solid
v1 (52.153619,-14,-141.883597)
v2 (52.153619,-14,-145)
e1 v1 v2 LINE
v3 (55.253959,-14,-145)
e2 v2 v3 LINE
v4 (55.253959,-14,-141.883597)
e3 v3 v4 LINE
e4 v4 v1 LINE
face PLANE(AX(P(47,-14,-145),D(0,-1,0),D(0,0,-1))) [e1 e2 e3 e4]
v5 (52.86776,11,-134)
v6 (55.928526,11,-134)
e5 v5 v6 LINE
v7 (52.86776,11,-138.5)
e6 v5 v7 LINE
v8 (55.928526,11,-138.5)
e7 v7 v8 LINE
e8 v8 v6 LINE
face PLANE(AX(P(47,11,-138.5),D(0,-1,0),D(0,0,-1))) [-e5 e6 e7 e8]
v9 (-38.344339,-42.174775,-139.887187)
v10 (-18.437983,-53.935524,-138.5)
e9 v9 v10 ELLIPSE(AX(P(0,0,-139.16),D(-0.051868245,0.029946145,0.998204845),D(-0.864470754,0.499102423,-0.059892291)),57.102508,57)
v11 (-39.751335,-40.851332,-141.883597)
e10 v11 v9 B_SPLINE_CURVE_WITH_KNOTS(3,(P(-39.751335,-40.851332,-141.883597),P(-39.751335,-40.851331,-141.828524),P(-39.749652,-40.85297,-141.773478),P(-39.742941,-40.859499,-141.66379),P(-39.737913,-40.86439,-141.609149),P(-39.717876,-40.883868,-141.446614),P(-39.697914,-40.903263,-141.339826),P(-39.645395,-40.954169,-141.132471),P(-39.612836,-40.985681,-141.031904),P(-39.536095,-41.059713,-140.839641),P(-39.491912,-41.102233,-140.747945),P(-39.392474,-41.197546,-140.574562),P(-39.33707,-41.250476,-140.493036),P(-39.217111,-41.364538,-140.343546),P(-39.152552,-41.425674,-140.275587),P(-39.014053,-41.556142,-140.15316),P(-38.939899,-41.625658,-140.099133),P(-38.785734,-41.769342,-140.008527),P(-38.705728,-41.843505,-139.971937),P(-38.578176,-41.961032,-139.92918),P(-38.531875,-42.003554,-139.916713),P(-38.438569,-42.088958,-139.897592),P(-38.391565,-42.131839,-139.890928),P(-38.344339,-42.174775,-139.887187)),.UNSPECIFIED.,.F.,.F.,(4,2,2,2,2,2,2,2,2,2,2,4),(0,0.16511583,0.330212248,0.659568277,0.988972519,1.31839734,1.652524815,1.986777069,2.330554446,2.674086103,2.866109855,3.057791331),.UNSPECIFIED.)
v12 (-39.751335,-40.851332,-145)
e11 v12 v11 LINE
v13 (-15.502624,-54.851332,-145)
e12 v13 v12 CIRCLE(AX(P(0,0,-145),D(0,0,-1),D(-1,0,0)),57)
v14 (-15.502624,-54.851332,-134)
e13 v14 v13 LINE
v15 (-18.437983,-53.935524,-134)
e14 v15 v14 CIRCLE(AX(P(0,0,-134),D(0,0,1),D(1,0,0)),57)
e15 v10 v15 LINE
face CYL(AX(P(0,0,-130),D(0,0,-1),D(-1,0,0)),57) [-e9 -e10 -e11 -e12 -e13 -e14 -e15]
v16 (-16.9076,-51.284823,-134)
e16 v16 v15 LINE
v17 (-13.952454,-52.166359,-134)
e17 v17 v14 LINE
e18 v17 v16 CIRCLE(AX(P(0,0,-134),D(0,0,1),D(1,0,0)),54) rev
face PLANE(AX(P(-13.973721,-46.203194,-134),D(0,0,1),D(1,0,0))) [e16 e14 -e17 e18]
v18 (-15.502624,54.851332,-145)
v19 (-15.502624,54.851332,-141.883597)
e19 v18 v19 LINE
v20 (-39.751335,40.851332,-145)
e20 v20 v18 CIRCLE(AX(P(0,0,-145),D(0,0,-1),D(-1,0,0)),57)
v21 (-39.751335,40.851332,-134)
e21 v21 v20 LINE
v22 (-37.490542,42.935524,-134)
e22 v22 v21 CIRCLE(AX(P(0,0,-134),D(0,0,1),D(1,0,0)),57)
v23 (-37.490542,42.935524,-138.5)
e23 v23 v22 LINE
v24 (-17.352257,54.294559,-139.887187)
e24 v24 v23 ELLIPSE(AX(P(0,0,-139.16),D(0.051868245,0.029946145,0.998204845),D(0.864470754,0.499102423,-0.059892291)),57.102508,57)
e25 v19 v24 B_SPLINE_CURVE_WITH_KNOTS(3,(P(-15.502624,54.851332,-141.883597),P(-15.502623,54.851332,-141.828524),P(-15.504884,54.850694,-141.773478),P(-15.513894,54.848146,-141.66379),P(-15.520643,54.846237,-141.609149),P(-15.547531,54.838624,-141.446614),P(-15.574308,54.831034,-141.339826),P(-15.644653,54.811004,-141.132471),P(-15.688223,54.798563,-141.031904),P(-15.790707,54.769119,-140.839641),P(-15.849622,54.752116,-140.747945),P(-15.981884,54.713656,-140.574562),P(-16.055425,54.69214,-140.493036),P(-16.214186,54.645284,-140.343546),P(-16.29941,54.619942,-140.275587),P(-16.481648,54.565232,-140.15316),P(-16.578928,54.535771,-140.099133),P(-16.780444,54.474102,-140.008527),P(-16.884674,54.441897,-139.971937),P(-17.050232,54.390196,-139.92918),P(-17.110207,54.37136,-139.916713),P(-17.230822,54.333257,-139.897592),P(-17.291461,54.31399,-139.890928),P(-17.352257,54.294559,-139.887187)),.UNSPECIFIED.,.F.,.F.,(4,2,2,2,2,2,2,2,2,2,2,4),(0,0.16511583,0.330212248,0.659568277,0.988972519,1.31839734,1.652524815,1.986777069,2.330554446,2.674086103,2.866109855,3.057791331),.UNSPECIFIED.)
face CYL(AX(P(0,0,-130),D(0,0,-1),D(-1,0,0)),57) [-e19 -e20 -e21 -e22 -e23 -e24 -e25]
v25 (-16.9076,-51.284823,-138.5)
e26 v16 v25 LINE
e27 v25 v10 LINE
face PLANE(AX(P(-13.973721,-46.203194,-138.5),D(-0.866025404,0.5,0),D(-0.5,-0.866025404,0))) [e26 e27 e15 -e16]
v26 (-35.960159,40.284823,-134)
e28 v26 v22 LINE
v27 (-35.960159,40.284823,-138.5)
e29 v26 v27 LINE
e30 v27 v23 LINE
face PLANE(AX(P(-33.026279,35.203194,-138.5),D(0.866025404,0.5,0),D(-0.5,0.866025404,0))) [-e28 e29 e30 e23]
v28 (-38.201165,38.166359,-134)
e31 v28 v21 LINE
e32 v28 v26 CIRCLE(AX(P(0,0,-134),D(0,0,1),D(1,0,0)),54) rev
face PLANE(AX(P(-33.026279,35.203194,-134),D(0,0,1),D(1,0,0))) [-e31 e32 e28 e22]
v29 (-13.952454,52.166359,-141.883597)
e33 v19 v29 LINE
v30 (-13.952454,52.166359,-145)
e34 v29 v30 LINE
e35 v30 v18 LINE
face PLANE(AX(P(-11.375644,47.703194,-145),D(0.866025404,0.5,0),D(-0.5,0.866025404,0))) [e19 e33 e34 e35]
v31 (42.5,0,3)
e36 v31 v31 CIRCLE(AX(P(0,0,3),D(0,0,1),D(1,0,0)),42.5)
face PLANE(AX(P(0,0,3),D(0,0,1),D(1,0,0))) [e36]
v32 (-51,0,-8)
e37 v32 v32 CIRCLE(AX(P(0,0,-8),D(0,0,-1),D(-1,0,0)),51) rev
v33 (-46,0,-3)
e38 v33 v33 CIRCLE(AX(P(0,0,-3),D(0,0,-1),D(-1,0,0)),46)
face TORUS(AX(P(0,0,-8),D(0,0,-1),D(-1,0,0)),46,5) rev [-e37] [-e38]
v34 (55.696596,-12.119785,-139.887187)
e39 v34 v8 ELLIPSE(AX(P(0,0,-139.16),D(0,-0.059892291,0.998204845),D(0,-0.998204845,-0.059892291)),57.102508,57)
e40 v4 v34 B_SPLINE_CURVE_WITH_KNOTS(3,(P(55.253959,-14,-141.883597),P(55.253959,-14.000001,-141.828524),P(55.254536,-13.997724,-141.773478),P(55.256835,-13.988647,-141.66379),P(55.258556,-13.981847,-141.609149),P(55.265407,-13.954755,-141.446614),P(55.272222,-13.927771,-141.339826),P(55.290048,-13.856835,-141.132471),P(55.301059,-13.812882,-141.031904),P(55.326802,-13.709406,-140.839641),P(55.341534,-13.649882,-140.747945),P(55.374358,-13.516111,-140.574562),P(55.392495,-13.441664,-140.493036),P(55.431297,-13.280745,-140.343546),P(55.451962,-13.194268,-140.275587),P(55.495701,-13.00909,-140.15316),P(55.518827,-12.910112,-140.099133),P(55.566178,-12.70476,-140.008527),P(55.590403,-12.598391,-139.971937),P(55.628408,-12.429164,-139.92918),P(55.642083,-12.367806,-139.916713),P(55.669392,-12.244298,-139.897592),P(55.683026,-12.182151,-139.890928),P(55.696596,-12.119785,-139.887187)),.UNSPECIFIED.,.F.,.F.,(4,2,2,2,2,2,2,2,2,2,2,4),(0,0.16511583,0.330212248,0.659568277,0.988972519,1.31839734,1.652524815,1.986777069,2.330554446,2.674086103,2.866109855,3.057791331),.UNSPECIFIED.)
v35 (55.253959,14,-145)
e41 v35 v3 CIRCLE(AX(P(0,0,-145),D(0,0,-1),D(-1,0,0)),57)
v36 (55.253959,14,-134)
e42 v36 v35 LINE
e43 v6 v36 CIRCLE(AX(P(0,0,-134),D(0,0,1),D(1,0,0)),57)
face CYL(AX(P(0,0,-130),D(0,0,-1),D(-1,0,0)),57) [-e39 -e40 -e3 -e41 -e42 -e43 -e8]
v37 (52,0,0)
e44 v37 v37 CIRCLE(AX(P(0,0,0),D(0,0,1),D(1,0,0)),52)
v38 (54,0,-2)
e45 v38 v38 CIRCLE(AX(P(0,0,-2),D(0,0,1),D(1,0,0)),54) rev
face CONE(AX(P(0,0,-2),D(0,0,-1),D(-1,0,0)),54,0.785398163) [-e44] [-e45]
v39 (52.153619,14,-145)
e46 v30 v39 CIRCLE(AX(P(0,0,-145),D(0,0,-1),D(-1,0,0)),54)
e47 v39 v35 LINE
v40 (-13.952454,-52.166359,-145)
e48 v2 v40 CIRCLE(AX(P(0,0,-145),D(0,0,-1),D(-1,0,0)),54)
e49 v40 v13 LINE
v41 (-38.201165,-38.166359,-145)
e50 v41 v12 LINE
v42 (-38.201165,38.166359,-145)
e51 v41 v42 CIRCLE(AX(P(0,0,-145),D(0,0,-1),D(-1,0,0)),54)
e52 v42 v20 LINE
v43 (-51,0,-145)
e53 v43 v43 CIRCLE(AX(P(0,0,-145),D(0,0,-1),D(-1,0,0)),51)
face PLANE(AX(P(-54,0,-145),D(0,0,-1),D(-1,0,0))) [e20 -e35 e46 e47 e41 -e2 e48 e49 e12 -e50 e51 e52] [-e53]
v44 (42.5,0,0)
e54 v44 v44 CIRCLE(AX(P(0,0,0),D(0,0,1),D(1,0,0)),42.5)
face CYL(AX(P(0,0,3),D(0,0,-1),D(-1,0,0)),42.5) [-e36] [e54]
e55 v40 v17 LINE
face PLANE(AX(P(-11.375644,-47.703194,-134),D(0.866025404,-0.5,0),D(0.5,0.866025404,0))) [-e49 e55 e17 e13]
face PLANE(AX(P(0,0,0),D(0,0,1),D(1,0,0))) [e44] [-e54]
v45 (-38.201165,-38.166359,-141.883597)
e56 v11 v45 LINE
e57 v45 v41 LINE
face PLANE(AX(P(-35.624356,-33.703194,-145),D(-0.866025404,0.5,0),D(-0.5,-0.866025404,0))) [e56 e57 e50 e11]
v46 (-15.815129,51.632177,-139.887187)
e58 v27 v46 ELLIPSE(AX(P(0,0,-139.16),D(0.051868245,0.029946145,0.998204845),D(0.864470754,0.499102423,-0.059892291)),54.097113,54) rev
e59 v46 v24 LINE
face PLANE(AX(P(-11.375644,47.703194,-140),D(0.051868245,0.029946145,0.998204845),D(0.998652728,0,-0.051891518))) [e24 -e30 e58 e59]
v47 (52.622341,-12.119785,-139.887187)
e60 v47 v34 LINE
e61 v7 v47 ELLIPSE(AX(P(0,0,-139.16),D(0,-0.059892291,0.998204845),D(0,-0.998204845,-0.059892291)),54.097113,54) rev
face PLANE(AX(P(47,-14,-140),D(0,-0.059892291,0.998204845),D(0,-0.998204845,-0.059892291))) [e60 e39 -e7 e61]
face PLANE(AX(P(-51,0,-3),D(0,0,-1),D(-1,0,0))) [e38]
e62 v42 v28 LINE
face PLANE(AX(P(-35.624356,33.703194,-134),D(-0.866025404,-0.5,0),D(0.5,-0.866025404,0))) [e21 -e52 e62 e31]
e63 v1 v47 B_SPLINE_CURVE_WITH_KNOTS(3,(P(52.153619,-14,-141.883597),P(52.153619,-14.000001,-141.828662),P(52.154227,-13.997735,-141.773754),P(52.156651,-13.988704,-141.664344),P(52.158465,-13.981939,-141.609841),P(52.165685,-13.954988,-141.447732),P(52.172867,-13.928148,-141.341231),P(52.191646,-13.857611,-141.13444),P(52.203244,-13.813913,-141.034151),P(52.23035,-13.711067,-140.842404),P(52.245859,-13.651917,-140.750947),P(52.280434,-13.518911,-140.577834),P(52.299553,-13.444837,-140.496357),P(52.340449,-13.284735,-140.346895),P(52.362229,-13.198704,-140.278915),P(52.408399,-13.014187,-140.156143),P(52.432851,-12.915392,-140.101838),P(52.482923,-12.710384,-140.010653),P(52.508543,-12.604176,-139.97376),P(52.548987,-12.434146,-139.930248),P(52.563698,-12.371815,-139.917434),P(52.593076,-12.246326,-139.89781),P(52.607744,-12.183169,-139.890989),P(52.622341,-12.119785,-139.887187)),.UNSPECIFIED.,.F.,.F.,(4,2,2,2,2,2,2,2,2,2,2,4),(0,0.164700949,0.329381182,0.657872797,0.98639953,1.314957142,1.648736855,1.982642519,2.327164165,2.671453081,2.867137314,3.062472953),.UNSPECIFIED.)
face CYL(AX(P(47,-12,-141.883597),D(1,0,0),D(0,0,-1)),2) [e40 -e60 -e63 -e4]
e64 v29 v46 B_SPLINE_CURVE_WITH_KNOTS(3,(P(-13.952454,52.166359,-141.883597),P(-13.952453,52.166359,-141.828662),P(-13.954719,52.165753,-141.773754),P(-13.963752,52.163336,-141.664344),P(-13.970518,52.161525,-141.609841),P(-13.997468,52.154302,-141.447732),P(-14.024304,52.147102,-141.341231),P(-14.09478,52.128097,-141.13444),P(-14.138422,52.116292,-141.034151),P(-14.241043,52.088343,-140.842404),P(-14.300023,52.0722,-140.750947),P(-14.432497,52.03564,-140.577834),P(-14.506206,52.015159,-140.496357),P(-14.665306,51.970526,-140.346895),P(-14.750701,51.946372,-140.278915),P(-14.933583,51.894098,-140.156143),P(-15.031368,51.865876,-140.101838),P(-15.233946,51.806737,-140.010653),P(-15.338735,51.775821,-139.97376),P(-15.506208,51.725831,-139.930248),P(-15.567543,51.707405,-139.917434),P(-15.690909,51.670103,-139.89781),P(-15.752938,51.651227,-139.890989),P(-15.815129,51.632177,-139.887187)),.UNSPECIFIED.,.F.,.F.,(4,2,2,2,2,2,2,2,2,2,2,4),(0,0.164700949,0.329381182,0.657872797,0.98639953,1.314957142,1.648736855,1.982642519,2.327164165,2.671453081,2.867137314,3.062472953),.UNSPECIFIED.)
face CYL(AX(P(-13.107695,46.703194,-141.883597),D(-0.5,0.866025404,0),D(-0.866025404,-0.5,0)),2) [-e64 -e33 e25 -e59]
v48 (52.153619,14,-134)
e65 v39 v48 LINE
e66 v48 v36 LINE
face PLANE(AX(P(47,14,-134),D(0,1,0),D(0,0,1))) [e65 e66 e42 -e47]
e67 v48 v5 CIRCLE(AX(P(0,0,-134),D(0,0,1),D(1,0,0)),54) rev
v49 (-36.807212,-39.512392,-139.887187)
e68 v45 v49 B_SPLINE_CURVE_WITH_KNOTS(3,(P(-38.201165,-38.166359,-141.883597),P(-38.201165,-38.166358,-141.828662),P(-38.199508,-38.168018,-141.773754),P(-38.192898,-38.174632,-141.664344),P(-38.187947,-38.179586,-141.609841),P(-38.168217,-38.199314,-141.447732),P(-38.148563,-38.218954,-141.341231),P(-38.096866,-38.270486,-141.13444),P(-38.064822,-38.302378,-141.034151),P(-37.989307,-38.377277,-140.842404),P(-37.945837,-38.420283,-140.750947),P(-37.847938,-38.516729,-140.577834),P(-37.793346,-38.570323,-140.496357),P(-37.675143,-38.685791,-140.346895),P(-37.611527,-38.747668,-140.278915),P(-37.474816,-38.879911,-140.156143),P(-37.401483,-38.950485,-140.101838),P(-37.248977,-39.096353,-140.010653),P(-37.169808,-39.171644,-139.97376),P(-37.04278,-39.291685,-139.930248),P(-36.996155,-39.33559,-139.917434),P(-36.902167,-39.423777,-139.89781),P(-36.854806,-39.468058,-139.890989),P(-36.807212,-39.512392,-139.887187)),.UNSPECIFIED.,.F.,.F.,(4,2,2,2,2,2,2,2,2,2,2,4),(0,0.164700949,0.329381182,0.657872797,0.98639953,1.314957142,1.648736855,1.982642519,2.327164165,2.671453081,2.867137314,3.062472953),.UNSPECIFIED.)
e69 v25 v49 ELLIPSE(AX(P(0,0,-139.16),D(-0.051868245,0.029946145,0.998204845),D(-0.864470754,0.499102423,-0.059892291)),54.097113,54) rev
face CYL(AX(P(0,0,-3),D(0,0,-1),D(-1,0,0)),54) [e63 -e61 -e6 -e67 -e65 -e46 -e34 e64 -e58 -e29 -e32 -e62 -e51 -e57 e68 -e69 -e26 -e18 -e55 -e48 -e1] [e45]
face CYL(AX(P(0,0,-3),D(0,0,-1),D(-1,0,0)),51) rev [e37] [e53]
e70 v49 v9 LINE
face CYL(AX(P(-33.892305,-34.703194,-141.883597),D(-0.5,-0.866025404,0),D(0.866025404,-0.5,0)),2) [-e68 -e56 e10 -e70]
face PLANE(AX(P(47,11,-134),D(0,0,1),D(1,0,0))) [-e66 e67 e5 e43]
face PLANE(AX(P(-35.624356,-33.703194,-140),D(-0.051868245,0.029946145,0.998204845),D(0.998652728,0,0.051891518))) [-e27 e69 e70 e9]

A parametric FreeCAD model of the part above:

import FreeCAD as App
import Part
import Sketcher

V = App.Vector
Q = App.Units.Quantity


def edges_at(feature, points):
    """Names of the edges that pass closest to the given points."""
    edges = feature.Shape.Edges
    near = lambda p: min(range(len(edges)), key=lambda i: edges[i].distToShape(Part.Vertex(*p))[0])
    return sorted({f"Edge{near(p) + 1}" for p in points})


def add_polygon(sketch, points):
    """Adds a closed chain of lines whose ends are joined by coincident constraints."""
    first, n = sketch.GeometryCount, len(points)
    for a, b in zip(points, points[1:] + points[:1]):
        sketch.addGeometry(Part.LineSegment(App.Vector(*a, 0), App.Vector(*b, 0)), False)
    for i in range(n):
        sketch.addConstraint(Sketcher.Constraint("Coincident", first + i, 2, first + (i + 1) % n, 1))

doc = App.newDocument("Part")
body = doc.addObject("PartDesign::Body", "Body")

# Sketch on XZ plane
sketch1 = body.newObject("Sketcher::SketchObject", "Sketch")
sketch1.AttachmentSupport = (doc.getObject("XZ_Plane"), [""])
sketch1.MapMode = "FlatFace"
add_polygon(sketch1, [(-54, 0), (0, 0), (0, -3), (-51, -3), (-51, -145), (-54, -145)])  # lines 0-5
sketch1.addConstraint([
    Sketcher.Constraint("Horizontal", 0),
    Sketcher.Constraint("Vertical", 1),
    Sketcher.Constraint("Horizontal", 2),
    Sketcher.Constraint("Vertical", 3),
    Sketcher.Constraint("Horizontal", 4),
    Sketcher.Constraint("Vertical", 5),
    Sketcher.Constraint("Coincident", 0, 2, -1, 1),
    Sketcher.Constraint("Equal", 4, 1),
    Sketcher.Constraint("DistanceX", 0, 1, 0, 2, Q("54 mm")),
    Sketcher.Constraint("DistanceX", 2, 2, 2, 1, Q("51 mm")),
    Sketcher.Constraint("DistanceY", 3, 2, 3, 1, Q("142 mm")),
])
revolution = body.newObject("PartDesign::Revolution", "Revolution")
revolution.Profile = sketch1
revolution.ReferenceAxis = (sketch1, ["V_Axis"])
revolution.Angle = 360

# Sketch on YZ plane
sketch2 = body.newObject("Sketcher::SketchObject", "Sketch001")
sketch2.AttachmentSupport = (doc.getObject("YZ_Plane"), [""])
sketch2.MapMode = "FlatFace"
sketch2.AttachmentOffset = App.Placement(V(0, 0, 57), App.Rotation())
add_polygon(sketch2, [(-14, -145), (14, -145), (14, -134), (11, -134), (11, -138.5), (-14, -140)])  # lines 0-5
sketch2.addConstraint([
    Sketcher.Constraint("Horizontal", 0),
    Sketcher.Constraint("Vertical", 1),
    Sketcher.Constraint("Horizontal", 2),
    Sketcher.Constraint("Vertical", 3),
    Sketcher.Constraint("Vertical", 5),
    Sketcher.Constraint("DistanceX", 0, 1, 0, 2, Q("28 mm")),
    Sketcher.Constraint("DistanceX", 2, 2, 2, 1, Q("3 mm")),
    Sketcher.Constraint("DistanceY", 1, 1, 1, 2, Q("11 mm")),
    Sketcher.Constraint("DistanceY", 5, 2, 5, 1, Q("5 mm")),
    Sketcher.Constraint("DistanceY", 3, 2, 3, 1, Q("4.5 mm")),
    Sketcher.Constraint("DistanceX", -1, 1, 0, 2, Q("14 mm")),
    Sketcher.Constraint("DistanceY", 0, 2, -1, 1, Q("145 mm")),
])
pad1 = body.newObject("PartDesign::Pad", "Pad")
pad1.Profile = sketch2
pad1.Length = 10
pad1.Reversed = True
doc.recompute()

fillet = body.newObject("PartDesign::Fillet", "Fillet")
fillet.Base = (pad1, edges_at(pad1, [(54.577, -14, -140)]))
fillet.Radius = 2
doc.recompute()

polarpattern = body.newObject("PartDesign::PolarPattern", "PolarPattern")
polarpattern.Originals = [pad1]
polarpattern.Axis = (doc.getObject("Z_Axis"), [""])
polarpattern.Angle = 360
polarpattern.Occurrences = 3
body.Tip = polarpattern
doc.recompute()

fillet2 = body.newObject("PartDesign::Fillet", "Fillet001")
fillet2.Base = (polarpattern, edges_at(polarpattern, [(-15.164, 54.265, -140), (-39.413, -40.265, -140)]))
fillet2.Radius = 2

# Sketch on XY plane
sketch3 = body.newObject("Sketcher::SketchObject", "Sketch002")
sketch3.AttachmentSupport = (doc.getObject("XY_Plane"), [""])
sketch3.MapMode = "FlatFace"
sketch3.AttachmentOffset = App.Placement(V(0, 0, -130), App.Rotation())
sketch3.addGeometry(Part.Circle(V(0, 0, 0), V(0, 0, 1), 51), False)
sketch3.addConstraint([
    Sketcher.Constraint("Coincident", 0, 3, -1, 1),
    Sketcher.Constraint("Diameter", 0, Q("102 mm")),
])
pocket1 = body.newObject("PartDesign::Pocket", "Pocket")
pocket1.Profile = sketch3
pocket1.Length = 15

# Sketch on XY plane
sketch4 = body.newObject("Sketcher::SketchObject", "Sketch003")
sketch4.AttachmentSupport = (doc.getObject("XY_Plane"), [""])
sketch4.MapMode = "FlatFace"
sketch4.AttachmentOffset = App.Placement(V(0, 0, -145), App.Rotation())
sketch4.addGeometry([
    Part.Circle(V(0, 0, 0), V(0, 0, 1), 63),
    Part.Circle(V(0, 0, 0), V(0, 0, 1), 57),
], False)
sketch4.addConstraint([
    Sketcher.Constraint("Coincident", 0, 3, -1, 1),
    Sketcher.Constraint("Coincident", 1, 3, -1, 1),
    Sketcher.Constraint("Diameter", 1, Q("114 mm")),
    Sketcher.Constraint("Diameter", 0, Q("125.23744 mm")),
])
pocket2 = body.newObject("PartDesign::Pocket", "Pocket001")
pocket2.Profile = sketch4
pocket2.Length = 15
pocket2.Reversed = True
doc.recompute()

chamfer = body.newObject("PartDesign::Chamfer", "Chamfer")
chamfer.Base = (pocket2, edges_at(pocket2, [(54, 0, 0)]))
chamfer.Size = 2
doc.recompute()

fillet3 = body.newObject("PartDesign::Fillet", "Fillet002")
fillet3.Base = (chamfer, edges_at(chamfer, [(51, 0, -3)]))
fillet3.Radius = 5

# Sketch on XY plane
sketch5 = body.newObject("Sketcher::SketchObject", "Sketch004")
sketch5.AttachmentSupport = (doc.getObject("XY_Plane"), [""])
sketch5.MapMode = "FlatFace"
sketch5.addGeometry(Part.Circle(V(0, 0, 0), V(0, 0, 1), 42), False)
sketch5.addConstraint([
    Sketcher.Constraint("Coincident", 0, 3, -1, 1),
    Sketcher.Constraint("Diameter", 0, Q("85 mm")),
])
pad2 = body.newObject("PartDesign::Pad", "Pad001")
pad2.Profile = sketch5
pad2.Length = 3

doc.recompute()
